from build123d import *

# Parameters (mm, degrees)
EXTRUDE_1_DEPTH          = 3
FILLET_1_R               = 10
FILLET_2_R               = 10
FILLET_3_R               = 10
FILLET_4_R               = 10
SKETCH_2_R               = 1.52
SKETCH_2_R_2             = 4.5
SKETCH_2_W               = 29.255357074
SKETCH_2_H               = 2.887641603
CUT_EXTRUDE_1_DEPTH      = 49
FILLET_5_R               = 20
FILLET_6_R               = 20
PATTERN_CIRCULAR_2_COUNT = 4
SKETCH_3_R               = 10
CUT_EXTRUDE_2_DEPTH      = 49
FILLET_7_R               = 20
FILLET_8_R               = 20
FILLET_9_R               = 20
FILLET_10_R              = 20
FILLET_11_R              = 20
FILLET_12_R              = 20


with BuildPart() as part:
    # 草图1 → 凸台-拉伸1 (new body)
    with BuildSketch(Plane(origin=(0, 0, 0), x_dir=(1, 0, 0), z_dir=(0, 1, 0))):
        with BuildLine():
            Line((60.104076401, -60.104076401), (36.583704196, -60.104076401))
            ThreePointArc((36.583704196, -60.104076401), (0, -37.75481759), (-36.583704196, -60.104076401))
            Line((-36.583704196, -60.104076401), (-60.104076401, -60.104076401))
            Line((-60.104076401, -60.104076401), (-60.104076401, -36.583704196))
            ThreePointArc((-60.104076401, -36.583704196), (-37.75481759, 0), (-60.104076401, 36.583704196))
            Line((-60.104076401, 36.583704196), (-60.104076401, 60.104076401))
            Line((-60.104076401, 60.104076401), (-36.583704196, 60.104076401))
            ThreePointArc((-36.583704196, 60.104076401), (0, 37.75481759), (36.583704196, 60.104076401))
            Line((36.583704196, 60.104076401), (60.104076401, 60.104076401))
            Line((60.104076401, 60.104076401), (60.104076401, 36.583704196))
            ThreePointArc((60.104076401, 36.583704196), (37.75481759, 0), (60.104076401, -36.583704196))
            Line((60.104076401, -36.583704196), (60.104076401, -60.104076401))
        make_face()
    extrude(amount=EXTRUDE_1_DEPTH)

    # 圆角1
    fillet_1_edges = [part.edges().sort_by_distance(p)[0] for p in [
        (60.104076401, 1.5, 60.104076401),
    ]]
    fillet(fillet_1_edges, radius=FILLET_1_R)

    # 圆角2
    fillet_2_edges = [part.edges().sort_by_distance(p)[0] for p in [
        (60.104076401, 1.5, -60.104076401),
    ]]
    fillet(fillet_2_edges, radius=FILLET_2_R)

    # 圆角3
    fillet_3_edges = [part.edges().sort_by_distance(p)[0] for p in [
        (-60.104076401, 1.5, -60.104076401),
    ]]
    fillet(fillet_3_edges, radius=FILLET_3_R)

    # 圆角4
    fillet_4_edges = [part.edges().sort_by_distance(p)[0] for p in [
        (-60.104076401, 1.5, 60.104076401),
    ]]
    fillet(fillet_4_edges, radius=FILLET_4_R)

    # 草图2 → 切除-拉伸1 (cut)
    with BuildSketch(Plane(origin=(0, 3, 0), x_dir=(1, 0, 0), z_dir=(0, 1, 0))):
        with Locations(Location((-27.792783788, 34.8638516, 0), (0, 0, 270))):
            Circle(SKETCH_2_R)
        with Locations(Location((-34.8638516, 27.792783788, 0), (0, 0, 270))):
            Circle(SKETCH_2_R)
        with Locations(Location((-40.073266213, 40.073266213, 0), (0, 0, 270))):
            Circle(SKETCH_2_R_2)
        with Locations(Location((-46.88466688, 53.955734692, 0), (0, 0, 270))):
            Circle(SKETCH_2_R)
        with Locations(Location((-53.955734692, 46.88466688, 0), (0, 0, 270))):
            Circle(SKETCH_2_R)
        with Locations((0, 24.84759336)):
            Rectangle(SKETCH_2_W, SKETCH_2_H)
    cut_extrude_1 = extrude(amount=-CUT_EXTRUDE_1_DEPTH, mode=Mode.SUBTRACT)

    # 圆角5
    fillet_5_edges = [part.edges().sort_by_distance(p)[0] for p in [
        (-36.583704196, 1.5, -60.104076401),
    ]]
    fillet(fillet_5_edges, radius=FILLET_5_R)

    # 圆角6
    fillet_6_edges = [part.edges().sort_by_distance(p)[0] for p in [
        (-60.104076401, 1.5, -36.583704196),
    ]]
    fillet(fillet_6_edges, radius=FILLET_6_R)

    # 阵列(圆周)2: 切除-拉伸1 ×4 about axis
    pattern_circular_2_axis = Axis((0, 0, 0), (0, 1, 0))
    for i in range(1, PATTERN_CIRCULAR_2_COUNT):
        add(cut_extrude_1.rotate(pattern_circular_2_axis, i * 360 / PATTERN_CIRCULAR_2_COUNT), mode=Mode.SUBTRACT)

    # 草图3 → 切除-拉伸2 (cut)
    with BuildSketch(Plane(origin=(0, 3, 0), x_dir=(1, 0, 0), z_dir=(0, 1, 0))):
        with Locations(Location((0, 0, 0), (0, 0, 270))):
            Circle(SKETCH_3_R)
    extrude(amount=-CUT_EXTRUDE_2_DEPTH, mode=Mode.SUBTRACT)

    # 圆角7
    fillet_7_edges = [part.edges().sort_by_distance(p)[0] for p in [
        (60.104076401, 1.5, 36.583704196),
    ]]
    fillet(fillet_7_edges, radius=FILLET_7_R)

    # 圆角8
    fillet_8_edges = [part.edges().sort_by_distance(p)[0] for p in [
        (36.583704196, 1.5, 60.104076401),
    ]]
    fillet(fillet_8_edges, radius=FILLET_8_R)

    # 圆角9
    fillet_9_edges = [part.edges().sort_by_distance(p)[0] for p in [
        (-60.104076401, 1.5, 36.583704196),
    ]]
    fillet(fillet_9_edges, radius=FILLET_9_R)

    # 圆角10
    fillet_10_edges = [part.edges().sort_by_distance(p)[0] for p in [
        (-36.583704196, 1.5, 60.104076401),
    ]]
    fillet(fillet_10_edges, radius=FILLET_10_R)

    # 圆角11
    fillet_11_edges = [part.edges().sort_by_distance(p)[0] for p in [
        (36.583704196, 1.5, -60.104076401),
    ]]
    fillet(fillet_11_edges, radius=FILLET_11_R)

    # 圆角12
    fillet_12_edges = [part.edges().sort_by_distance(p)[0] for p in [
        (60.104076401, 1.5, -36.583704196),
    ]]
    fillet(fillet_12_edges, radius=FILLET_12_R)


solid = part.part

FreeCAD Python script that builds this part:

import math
import FreeCAD as App
import Part
import Sketcher
Q = App.Units.Quantity


def edges_at(feature, points):
    """Names of the edges that pass closest to the given points."""
    edges = feature.Shape.Edges
    near = lambda p: min(range(len(edges)), key=lambda i: edges[i].distToShape(Part.Vertex(*p))[0])
    return sorted({f"Edge{near(p) + 1}" for p in points})

doc = App.newDocument("Part")
body = doc.addObject("PartDesign::Body", "Body")

sketch1 = body.newObject("Sketcher::SketchObject", "Sketch")
sketch1.AttachmentSupport = (doc.getObject("XZ_Plane"), [""])
sketch1.MapMode = "FlatFace"
sketch1.addGeometry(Part.LineSegment(App.Vector(37, 60, 0), App.Vector(60, 60, 0)), False)
sketch1.addGeometry(Part.LineSegment(App.Vector(60, 60, 0), App.Vector(60, 37, 0)), False)
sketch1.addGeometry(Part.ArcOfCircle(Part.Circle(App.Vector(79, 0, 0), App.Vector(0, 0, 1), 41), math.radians(117), math.radians(243)), False)
sketch1.addGeometry(Part.LineSegment(App.Vector(60, -37, 0), App.Vector(60, -60, 0)), False)
sketch1.addGeometry(Part.LineSegment(App.Vector(60, -60, 0), App.Vector(37, -60, 0)), False)
sketch1.addGeometry(Part.ArcOfCircle(Part.Circle(App.Vector(0, -79, 0), App.Vector(0, 0, 1), 41), math.radians(27), math.radians(153)), False)
sketch1.addGeometry(Part.LineSegment(App.Vector(-37, -60, 0), App.Vector(-60, -60, 0)), False)
sketch1.addGeometry(Part.LineSegment(App.Vector(-60, -60, 0), App.Vector(-60, -37, 0)), False)
sketch1.addGeometry(Part.ArcOfCircle(Part.Circle(App.Vector(-79, 0, 0), App.Vector(0, 0, 1), 41), math.radians(-63), math.radians(63)), False)
sketch1.addGeometry(Part.LineSegment(App.Vector(-60, 37, 0), App.Vector(-60, 60, 0)), False)
sketch1.addGeometry(Part.LineSegment(App.Vector(-60, 60, 0), App.Vector(-37, 60, 0)), False)
sketch1.addGeometry(Part.ArcOfCircle(Part.Circle(App.Vector(0, 79, 0), App.Vector(0, 0, 1), 41), math.radians(-153), math.radians(-27)), False)
sketch1.addConstraint(Sketcher.Constraint("Coincident", 0, 2, 1, 1))
sketch1.addConstraint(Sketcher.Constraint("Coincident", 1, 2, 2, 1))
sketch1.addConstraint(Sketcher.Constraint("Coincident", 2, 2, 3, 1))
sketch1.addConstraint(Sketcher.Constraint("Coincident", 3, 2, 4, 1))
sketch1.addConstraint(Sketcher.Constraint("Coincident", 4, 2, 5, 1))
sketch1.addConstraint(Sketcher.Constraint("Coincident", 5, 2, 6, 1))
sketch1.addConstraint(Sketcher.Constraint("Coincident", 6, 2, 7, 1))
sketch1.addConstraint(Sketcher.Constraint("Coincident", 7, 2, 8, 1))
sketch1.addConstraint(Sketcher.Constraint("Coincident", 8, 2, 9, 1))
sketch1.addConstraint(Sketcher.Constraint("Coincident", 9, 2, 10, 1))
sketch1.addConstraint(Sketcher.Constraint("Coincident", 10, 2, 11, 1))
sketch1.addConstraint(Sketcher.Constraint("Coincident", 11, 2, 0, 1))
sketch1.addConstraint(Sketcher.Constraint("Horizontal", 0))
sketch1.addConstraint(Sketcher.Constraint("Vertical", 1))
sketch1.addConstraint(Sketcher.Constraint("Vertical", 3))
sketch1.addConstraint(Sketcher.Constraint("Horizontal", 4))
sketch1.addConstraint(Sketcher.Constraint("Horizontal", 6))
sketch1.addConstraint(Sketcher.Constraint("Vertical", 7))
sketch1.addConstraint(Sketcher.Constraint("Vertical", 9))
sketch1.addConstraint(Sketcher.Constraint("Horizontal", 10))
sketch1.addConstraint(Sketcher.Constraint("Equal", 2, 5))
sketch1.addConstraint(Sketcher.Constraint("Equal", 5, 8))
sketch1.addConstraint(Sketcher.Constraint("Equal", 8, 11))
sketch1.addConstraint(Sketcher.Constraint("Symmetric", 2, 3, 8, 3, -1, 1))
sketch1.addConstraint(Sketcher.Constraint("Symmetric", 5, 3, 11, 3, -1, 1))
sketch1.addConstraint(Sketcher.Constraint("Symmetric", 0, 2, 6, 2, -1, 1))
sketch1.addConstraint(Sketcher.Constraint("Symmetric", 3, 2, 9, 2, -1, 1))
sketch1.addConstraint(Sketcher.Constraint("Symmetric", 4, 2, 5, 2, -2))
sketch1.addConstraint(Sketcher.Constraint("Symmetric", 2, 2, 7, 2, -2))
sketch1.addConstraint(Sketcher.Constraint("Equal", 10, 1))
sketch1.addConstraint(Sketcher.Constraint("Radius", 2, Q("41.116728 mm")))
sketch1.addConstraint(Sketcher.Constraint("DistanceX", 0, 1, 0, 2, Q("23.520372 mm")))
sketch1.addConstraint(Sketcher.Constraint("DistanceX", 8, 3, 2, 3, Q("157.743091 mm")))
sketch1.addConstraint(Sketcher.Constraint("DistanceY", 5, 3, 11, 3, Q("157.743091 mm")))
pad1 = body.newObject("PartDesign::Pad", "Pad")
pad1.Profile = sketch1
pad1.Length = 3
pad1.Reversed = True
doc.recompute()

fillet = body.newObject("PartDesign::Fillet", "Fillet")
fillet.Base = (pad1, edges_at(pad1, [(60.104, 1.5, 60.104)]))
fillet.Radius = 10
doc.recompute()

fillet2 = body.newObject("PartDesign::Fillet", "Fillet001")
fillet2.Base = (fillet, edges_at(fillet, [(60.104, 1.5, -60.104)]))
fillet2.Radius = 10
doc.recompute()

fillet3 = body.newObject("PartDesign::Fillet", "Fillet002")
fillet3.Base = (fillet2, edges_at(fillet2, [(-60.104, 1.5, -60.104)]))
fillet3.Radius = 10
doc.recompute()

fillet4 = body.newObject("PartDesign::Fillet", "Fillet003")
fillet4.Base = (fillet3, edges_at(fillet3, [(-60.104, 1.5, 60.104)]))
fillet4.Radius = 10

sketch2 = body.newObject("Sketcher::SketchObject", "Sketch001")
sketch2.AttachmentSupport = (doc.getObject("XZ_Plane"), [""])
sketch2.MapMode = "FlatFace"
sketch2.AttachmentOffset = App.Placement(App.Vector(0, 0, -3), App.Rotation())
sketch2.addGeometry(Part.Circle(App.Vector(-27.8, -34.9, 0), App.Vector(0, 0, 1), 1.5), False)
sketch2.addGeometry(Part.Circle(App.Vector(-34.9, -27.8, 0), App.Vector(0, 0, 1), 1.5), False)
sketch2.addGeometry(Part.Circle(App.Vector(-40.1, -40.1, 0), App.Vector(0, 0, 1), 4.5), False)
sketch2.addGeometry(Part.Circle(App.Vector(-46.9, -54, 0), App.Vector(0, 0, 1), 1.5), False)
sketch2.addGeometry(Part.Circle(App.Vector(-54, -46.9, 0), App.Vector(0, 0, 1), 1.5), False)
sketch2.addGeometry(Part.LineSegment(App.Vector(-14.6, -26.3, 0), App.Vector(-14.6, -23.4, 0)), False)
sketch2.addGeometry(Part.LineSegment(App.Vector(-14.6, -23.4, 0), App.Vector(14.6, -23.4, 0)), False)
sketch2.addGeometry(Part.LineSegment(App.Vector(14.6, -23.4, 0), App.Vector(14.6, -26.3, 0)), False)
sketch2.addGeometry(Part.LineSegment(App.Vector(14.6, -26.3, 0), App.Vector(-14.6, -26.3, 0)), False)
sketch2.addConstraint(Sketcher.Constraint("Coincident", 5, 2, 6, 1))
sketch2.addConstraint(Sketcher.Constraint("Coincident", 6, 2, 7, 1))
sketch2.addConstraint(Sketcher.Constraint("Coincident", 7, 2, 8, 1))
sketch2.addConstraint(Sketcher.Constraint("Coincident", 8, 2, 5, 1))
sketch2.addConstraint(Sketcher.Constraint("Vertical", 5))
sketch2.addConstraint(Sketcher.Constraint("Horizontal", 6))
sketch2.addConstraint(Sketcher.Constraint("Vertical", 7))
sketch2.addConstraint(Sketcher.Constraint("Horizontal", 8))
sketch2.addConstraint(Sketcher.Constraint("Equal", 0, 1))
sketch2.addConstraint(Sketcher.Constraint("Equal", 1, 3))
sketch2.addConstraint(Sketcher.Constraint("Equal", 3, 4))
sketch2.addConstraint(Sketcher.Constraint("Diameter", 2, Q("9 mm")))
sketch2.addConstraint(Sketcher.Constraint("Diameter", 0, Q("3.04 mm")))
sketch2.addConstraint(Sketcher.Constraint("DistanceY", 5, 1, 5, 2, Q("2.887642 mm")))
sketch2.addConstraint(Sketcher.Constraint("DistanceX", 3, 3, 2, 3, Q("6.811401 mm")))
sketch2.addConstraint(Sketcher.Constraint("DistanceY", 4, 3, 2, 3, Q("6.811401 mm")))
sketch2.addConstraint(Sketcher.Constraint("DistanceX", 6, 1, 6, 2, Q("29.255357 mm")))
sketch2.addConstraint(Sketcher.Constraint("DistanceY", 0, 3, -1, 1, Q("34.863852 mm")))
sketch2.addConstraint(Sketcher.Constraint("DistanceX", 1, 3, -1, 1, Q("34.863852 mm")))
sketch2.addConstraint(Sketcher.Constraint("DistanceX", 5, 2, -1, 1, Q("14.627679 mm")))
sketch2.addConstraint(Sketcher.Constraint("DistanceY", 3, 3, 2, 3, Q("13.882468 mm")))
sketch2.addConstraint(Sketcher.Constraint("DistanceY", 3, 3, 1, 3, Q("26.162951 mm")))
sketch2.addConstraint(Sketcher.Constraint("DistanceX", 4, 3, 2, 3, Q("13.882468 mm")))
sketch2.addConstraint(Sketcher.Constraint("DistanceX", 4, 3, 0, 3, Q("26.162951 mm")))
sketch2.addConstraint(Sketcher.Constraint("DistanceY", 0, 3, 5, 2, Q("11.460079 mm")))
sketch2.addConstraint(Sketcher.Constraint("DistanceY", 1, 3, 5, 2, Q("4.389011 mm")))
sketch2.addConstraint(Sketcher.Constraint("DistanceX", 3, 3, 5, 2, Q("32.256988 mm")))
pocket1 = body.newObject("PartDesign::Pocket", "Pocket")
pocket1.Profile = sketch2
pocket1.Length = 49
pocket1.Reversed = True
doc.recompute()

fillet5 = body.newObject("PartDesign::Fillet", "Fillet004")
fillet5.Base = (pocket1, edges_at(pocket1, [(-36.584, 1.5, -60.104)]))
fillet5.Radius = 20
doc.recompute()

fillet6 = body.newObject("PartDesign::Fillet", "Fillet005")
fillet6.Base = (fillet5, edges_at(fillet5, [(-60.104, 1.5, -36.584)]))
fillet6.Radius = 20
doc.recompute()

polarpattern = body.newObject("PartDesign::PolarPattern", "PolarPattern")
polarpattern.Originals = [pocket1]
polarpattern.Axis = (doc.getObject("Y_Axis"), [""])
polarpattern.Angle = 360
polarpattern.Occurrences = 4
body.Tip = polarpattern

sketch3 = body.newObject("Sketcher::SketchObject", "Sketch002")
sketch3.AttachmentSupport = (doc.getObject("XZ_Plane"), [""])
sketch3.MapMode = "FlatFace"
sketch3.AttachmentOffset = App.Placement(App.Vector(0, 0, -3), App.Rotation())
sketch3.addGeometry(Part.Circle(App.Vector(0, 0, 0), App.Vector(0, 0, 1), 10), False)
sketch3.addConstraint(Sketcher.Constraint("Coincident", 0, 3, -1, 1))
sketch3.addConstraint(Sketcher.Constraint("Diameter", 0, Q("20 mm")))
pocket2 = body.newObject("PartDesign::Pocket", "Pocket001")
pocket2.Profile = sketch3
pocket2.Length = 49
pocket2.Reversed = True
doc.recompute()

fillet7 = body.newObject("PartDesign::Fillet", "Fillet006")
fillet7.Base = (pocket2, edges_at(pocket2, [(60.104, 1.5, 36.584)]))
fillet7.Radius = 20
doc.recompute()

fillet8 = body.newObject("PartDesign::Fillet", "Fillet007")
fillet8.Base = (fillet7, edges_at(fillet7, [(36.584, 1.5, 60.104)]))
fillet8.Radius = 20
doc.recompute()

fillet9 = body.newObject("PartDesign::Fillet", "Fillet008")
fillet9.Base = (fillet8, edges_at(fillet8, [(-60.104, 1.5, 36.584)]))
fillet9.Radius = 20
doc.recompute()

fillet10 = body.newObject("PartDesign::Fillet", "Fillet009")
fillet10.Base = (fillet9, edges_at(fillet9, [(-36.584, 1.5, 60.104)]))
fillet10.Radius = 20
doc.recompute()

fillet11 = body.newObject("PartDesign::Fillet", "Fillet010")
fillet11.Base = (fillet10, edges_at(fillet10, [(36.584, 1.5, -60.104)]))
fillet11.Radius = 20
doc.recompute()

fillet12 = body.newObject("PartDesign::Fillet", "Fillet011")
fillet12.Base = (fillet11, edges_at(fillet11, [(60.104, 1.5, -36.584)]))
fillet12.Radius = 20

doc.recompute()
